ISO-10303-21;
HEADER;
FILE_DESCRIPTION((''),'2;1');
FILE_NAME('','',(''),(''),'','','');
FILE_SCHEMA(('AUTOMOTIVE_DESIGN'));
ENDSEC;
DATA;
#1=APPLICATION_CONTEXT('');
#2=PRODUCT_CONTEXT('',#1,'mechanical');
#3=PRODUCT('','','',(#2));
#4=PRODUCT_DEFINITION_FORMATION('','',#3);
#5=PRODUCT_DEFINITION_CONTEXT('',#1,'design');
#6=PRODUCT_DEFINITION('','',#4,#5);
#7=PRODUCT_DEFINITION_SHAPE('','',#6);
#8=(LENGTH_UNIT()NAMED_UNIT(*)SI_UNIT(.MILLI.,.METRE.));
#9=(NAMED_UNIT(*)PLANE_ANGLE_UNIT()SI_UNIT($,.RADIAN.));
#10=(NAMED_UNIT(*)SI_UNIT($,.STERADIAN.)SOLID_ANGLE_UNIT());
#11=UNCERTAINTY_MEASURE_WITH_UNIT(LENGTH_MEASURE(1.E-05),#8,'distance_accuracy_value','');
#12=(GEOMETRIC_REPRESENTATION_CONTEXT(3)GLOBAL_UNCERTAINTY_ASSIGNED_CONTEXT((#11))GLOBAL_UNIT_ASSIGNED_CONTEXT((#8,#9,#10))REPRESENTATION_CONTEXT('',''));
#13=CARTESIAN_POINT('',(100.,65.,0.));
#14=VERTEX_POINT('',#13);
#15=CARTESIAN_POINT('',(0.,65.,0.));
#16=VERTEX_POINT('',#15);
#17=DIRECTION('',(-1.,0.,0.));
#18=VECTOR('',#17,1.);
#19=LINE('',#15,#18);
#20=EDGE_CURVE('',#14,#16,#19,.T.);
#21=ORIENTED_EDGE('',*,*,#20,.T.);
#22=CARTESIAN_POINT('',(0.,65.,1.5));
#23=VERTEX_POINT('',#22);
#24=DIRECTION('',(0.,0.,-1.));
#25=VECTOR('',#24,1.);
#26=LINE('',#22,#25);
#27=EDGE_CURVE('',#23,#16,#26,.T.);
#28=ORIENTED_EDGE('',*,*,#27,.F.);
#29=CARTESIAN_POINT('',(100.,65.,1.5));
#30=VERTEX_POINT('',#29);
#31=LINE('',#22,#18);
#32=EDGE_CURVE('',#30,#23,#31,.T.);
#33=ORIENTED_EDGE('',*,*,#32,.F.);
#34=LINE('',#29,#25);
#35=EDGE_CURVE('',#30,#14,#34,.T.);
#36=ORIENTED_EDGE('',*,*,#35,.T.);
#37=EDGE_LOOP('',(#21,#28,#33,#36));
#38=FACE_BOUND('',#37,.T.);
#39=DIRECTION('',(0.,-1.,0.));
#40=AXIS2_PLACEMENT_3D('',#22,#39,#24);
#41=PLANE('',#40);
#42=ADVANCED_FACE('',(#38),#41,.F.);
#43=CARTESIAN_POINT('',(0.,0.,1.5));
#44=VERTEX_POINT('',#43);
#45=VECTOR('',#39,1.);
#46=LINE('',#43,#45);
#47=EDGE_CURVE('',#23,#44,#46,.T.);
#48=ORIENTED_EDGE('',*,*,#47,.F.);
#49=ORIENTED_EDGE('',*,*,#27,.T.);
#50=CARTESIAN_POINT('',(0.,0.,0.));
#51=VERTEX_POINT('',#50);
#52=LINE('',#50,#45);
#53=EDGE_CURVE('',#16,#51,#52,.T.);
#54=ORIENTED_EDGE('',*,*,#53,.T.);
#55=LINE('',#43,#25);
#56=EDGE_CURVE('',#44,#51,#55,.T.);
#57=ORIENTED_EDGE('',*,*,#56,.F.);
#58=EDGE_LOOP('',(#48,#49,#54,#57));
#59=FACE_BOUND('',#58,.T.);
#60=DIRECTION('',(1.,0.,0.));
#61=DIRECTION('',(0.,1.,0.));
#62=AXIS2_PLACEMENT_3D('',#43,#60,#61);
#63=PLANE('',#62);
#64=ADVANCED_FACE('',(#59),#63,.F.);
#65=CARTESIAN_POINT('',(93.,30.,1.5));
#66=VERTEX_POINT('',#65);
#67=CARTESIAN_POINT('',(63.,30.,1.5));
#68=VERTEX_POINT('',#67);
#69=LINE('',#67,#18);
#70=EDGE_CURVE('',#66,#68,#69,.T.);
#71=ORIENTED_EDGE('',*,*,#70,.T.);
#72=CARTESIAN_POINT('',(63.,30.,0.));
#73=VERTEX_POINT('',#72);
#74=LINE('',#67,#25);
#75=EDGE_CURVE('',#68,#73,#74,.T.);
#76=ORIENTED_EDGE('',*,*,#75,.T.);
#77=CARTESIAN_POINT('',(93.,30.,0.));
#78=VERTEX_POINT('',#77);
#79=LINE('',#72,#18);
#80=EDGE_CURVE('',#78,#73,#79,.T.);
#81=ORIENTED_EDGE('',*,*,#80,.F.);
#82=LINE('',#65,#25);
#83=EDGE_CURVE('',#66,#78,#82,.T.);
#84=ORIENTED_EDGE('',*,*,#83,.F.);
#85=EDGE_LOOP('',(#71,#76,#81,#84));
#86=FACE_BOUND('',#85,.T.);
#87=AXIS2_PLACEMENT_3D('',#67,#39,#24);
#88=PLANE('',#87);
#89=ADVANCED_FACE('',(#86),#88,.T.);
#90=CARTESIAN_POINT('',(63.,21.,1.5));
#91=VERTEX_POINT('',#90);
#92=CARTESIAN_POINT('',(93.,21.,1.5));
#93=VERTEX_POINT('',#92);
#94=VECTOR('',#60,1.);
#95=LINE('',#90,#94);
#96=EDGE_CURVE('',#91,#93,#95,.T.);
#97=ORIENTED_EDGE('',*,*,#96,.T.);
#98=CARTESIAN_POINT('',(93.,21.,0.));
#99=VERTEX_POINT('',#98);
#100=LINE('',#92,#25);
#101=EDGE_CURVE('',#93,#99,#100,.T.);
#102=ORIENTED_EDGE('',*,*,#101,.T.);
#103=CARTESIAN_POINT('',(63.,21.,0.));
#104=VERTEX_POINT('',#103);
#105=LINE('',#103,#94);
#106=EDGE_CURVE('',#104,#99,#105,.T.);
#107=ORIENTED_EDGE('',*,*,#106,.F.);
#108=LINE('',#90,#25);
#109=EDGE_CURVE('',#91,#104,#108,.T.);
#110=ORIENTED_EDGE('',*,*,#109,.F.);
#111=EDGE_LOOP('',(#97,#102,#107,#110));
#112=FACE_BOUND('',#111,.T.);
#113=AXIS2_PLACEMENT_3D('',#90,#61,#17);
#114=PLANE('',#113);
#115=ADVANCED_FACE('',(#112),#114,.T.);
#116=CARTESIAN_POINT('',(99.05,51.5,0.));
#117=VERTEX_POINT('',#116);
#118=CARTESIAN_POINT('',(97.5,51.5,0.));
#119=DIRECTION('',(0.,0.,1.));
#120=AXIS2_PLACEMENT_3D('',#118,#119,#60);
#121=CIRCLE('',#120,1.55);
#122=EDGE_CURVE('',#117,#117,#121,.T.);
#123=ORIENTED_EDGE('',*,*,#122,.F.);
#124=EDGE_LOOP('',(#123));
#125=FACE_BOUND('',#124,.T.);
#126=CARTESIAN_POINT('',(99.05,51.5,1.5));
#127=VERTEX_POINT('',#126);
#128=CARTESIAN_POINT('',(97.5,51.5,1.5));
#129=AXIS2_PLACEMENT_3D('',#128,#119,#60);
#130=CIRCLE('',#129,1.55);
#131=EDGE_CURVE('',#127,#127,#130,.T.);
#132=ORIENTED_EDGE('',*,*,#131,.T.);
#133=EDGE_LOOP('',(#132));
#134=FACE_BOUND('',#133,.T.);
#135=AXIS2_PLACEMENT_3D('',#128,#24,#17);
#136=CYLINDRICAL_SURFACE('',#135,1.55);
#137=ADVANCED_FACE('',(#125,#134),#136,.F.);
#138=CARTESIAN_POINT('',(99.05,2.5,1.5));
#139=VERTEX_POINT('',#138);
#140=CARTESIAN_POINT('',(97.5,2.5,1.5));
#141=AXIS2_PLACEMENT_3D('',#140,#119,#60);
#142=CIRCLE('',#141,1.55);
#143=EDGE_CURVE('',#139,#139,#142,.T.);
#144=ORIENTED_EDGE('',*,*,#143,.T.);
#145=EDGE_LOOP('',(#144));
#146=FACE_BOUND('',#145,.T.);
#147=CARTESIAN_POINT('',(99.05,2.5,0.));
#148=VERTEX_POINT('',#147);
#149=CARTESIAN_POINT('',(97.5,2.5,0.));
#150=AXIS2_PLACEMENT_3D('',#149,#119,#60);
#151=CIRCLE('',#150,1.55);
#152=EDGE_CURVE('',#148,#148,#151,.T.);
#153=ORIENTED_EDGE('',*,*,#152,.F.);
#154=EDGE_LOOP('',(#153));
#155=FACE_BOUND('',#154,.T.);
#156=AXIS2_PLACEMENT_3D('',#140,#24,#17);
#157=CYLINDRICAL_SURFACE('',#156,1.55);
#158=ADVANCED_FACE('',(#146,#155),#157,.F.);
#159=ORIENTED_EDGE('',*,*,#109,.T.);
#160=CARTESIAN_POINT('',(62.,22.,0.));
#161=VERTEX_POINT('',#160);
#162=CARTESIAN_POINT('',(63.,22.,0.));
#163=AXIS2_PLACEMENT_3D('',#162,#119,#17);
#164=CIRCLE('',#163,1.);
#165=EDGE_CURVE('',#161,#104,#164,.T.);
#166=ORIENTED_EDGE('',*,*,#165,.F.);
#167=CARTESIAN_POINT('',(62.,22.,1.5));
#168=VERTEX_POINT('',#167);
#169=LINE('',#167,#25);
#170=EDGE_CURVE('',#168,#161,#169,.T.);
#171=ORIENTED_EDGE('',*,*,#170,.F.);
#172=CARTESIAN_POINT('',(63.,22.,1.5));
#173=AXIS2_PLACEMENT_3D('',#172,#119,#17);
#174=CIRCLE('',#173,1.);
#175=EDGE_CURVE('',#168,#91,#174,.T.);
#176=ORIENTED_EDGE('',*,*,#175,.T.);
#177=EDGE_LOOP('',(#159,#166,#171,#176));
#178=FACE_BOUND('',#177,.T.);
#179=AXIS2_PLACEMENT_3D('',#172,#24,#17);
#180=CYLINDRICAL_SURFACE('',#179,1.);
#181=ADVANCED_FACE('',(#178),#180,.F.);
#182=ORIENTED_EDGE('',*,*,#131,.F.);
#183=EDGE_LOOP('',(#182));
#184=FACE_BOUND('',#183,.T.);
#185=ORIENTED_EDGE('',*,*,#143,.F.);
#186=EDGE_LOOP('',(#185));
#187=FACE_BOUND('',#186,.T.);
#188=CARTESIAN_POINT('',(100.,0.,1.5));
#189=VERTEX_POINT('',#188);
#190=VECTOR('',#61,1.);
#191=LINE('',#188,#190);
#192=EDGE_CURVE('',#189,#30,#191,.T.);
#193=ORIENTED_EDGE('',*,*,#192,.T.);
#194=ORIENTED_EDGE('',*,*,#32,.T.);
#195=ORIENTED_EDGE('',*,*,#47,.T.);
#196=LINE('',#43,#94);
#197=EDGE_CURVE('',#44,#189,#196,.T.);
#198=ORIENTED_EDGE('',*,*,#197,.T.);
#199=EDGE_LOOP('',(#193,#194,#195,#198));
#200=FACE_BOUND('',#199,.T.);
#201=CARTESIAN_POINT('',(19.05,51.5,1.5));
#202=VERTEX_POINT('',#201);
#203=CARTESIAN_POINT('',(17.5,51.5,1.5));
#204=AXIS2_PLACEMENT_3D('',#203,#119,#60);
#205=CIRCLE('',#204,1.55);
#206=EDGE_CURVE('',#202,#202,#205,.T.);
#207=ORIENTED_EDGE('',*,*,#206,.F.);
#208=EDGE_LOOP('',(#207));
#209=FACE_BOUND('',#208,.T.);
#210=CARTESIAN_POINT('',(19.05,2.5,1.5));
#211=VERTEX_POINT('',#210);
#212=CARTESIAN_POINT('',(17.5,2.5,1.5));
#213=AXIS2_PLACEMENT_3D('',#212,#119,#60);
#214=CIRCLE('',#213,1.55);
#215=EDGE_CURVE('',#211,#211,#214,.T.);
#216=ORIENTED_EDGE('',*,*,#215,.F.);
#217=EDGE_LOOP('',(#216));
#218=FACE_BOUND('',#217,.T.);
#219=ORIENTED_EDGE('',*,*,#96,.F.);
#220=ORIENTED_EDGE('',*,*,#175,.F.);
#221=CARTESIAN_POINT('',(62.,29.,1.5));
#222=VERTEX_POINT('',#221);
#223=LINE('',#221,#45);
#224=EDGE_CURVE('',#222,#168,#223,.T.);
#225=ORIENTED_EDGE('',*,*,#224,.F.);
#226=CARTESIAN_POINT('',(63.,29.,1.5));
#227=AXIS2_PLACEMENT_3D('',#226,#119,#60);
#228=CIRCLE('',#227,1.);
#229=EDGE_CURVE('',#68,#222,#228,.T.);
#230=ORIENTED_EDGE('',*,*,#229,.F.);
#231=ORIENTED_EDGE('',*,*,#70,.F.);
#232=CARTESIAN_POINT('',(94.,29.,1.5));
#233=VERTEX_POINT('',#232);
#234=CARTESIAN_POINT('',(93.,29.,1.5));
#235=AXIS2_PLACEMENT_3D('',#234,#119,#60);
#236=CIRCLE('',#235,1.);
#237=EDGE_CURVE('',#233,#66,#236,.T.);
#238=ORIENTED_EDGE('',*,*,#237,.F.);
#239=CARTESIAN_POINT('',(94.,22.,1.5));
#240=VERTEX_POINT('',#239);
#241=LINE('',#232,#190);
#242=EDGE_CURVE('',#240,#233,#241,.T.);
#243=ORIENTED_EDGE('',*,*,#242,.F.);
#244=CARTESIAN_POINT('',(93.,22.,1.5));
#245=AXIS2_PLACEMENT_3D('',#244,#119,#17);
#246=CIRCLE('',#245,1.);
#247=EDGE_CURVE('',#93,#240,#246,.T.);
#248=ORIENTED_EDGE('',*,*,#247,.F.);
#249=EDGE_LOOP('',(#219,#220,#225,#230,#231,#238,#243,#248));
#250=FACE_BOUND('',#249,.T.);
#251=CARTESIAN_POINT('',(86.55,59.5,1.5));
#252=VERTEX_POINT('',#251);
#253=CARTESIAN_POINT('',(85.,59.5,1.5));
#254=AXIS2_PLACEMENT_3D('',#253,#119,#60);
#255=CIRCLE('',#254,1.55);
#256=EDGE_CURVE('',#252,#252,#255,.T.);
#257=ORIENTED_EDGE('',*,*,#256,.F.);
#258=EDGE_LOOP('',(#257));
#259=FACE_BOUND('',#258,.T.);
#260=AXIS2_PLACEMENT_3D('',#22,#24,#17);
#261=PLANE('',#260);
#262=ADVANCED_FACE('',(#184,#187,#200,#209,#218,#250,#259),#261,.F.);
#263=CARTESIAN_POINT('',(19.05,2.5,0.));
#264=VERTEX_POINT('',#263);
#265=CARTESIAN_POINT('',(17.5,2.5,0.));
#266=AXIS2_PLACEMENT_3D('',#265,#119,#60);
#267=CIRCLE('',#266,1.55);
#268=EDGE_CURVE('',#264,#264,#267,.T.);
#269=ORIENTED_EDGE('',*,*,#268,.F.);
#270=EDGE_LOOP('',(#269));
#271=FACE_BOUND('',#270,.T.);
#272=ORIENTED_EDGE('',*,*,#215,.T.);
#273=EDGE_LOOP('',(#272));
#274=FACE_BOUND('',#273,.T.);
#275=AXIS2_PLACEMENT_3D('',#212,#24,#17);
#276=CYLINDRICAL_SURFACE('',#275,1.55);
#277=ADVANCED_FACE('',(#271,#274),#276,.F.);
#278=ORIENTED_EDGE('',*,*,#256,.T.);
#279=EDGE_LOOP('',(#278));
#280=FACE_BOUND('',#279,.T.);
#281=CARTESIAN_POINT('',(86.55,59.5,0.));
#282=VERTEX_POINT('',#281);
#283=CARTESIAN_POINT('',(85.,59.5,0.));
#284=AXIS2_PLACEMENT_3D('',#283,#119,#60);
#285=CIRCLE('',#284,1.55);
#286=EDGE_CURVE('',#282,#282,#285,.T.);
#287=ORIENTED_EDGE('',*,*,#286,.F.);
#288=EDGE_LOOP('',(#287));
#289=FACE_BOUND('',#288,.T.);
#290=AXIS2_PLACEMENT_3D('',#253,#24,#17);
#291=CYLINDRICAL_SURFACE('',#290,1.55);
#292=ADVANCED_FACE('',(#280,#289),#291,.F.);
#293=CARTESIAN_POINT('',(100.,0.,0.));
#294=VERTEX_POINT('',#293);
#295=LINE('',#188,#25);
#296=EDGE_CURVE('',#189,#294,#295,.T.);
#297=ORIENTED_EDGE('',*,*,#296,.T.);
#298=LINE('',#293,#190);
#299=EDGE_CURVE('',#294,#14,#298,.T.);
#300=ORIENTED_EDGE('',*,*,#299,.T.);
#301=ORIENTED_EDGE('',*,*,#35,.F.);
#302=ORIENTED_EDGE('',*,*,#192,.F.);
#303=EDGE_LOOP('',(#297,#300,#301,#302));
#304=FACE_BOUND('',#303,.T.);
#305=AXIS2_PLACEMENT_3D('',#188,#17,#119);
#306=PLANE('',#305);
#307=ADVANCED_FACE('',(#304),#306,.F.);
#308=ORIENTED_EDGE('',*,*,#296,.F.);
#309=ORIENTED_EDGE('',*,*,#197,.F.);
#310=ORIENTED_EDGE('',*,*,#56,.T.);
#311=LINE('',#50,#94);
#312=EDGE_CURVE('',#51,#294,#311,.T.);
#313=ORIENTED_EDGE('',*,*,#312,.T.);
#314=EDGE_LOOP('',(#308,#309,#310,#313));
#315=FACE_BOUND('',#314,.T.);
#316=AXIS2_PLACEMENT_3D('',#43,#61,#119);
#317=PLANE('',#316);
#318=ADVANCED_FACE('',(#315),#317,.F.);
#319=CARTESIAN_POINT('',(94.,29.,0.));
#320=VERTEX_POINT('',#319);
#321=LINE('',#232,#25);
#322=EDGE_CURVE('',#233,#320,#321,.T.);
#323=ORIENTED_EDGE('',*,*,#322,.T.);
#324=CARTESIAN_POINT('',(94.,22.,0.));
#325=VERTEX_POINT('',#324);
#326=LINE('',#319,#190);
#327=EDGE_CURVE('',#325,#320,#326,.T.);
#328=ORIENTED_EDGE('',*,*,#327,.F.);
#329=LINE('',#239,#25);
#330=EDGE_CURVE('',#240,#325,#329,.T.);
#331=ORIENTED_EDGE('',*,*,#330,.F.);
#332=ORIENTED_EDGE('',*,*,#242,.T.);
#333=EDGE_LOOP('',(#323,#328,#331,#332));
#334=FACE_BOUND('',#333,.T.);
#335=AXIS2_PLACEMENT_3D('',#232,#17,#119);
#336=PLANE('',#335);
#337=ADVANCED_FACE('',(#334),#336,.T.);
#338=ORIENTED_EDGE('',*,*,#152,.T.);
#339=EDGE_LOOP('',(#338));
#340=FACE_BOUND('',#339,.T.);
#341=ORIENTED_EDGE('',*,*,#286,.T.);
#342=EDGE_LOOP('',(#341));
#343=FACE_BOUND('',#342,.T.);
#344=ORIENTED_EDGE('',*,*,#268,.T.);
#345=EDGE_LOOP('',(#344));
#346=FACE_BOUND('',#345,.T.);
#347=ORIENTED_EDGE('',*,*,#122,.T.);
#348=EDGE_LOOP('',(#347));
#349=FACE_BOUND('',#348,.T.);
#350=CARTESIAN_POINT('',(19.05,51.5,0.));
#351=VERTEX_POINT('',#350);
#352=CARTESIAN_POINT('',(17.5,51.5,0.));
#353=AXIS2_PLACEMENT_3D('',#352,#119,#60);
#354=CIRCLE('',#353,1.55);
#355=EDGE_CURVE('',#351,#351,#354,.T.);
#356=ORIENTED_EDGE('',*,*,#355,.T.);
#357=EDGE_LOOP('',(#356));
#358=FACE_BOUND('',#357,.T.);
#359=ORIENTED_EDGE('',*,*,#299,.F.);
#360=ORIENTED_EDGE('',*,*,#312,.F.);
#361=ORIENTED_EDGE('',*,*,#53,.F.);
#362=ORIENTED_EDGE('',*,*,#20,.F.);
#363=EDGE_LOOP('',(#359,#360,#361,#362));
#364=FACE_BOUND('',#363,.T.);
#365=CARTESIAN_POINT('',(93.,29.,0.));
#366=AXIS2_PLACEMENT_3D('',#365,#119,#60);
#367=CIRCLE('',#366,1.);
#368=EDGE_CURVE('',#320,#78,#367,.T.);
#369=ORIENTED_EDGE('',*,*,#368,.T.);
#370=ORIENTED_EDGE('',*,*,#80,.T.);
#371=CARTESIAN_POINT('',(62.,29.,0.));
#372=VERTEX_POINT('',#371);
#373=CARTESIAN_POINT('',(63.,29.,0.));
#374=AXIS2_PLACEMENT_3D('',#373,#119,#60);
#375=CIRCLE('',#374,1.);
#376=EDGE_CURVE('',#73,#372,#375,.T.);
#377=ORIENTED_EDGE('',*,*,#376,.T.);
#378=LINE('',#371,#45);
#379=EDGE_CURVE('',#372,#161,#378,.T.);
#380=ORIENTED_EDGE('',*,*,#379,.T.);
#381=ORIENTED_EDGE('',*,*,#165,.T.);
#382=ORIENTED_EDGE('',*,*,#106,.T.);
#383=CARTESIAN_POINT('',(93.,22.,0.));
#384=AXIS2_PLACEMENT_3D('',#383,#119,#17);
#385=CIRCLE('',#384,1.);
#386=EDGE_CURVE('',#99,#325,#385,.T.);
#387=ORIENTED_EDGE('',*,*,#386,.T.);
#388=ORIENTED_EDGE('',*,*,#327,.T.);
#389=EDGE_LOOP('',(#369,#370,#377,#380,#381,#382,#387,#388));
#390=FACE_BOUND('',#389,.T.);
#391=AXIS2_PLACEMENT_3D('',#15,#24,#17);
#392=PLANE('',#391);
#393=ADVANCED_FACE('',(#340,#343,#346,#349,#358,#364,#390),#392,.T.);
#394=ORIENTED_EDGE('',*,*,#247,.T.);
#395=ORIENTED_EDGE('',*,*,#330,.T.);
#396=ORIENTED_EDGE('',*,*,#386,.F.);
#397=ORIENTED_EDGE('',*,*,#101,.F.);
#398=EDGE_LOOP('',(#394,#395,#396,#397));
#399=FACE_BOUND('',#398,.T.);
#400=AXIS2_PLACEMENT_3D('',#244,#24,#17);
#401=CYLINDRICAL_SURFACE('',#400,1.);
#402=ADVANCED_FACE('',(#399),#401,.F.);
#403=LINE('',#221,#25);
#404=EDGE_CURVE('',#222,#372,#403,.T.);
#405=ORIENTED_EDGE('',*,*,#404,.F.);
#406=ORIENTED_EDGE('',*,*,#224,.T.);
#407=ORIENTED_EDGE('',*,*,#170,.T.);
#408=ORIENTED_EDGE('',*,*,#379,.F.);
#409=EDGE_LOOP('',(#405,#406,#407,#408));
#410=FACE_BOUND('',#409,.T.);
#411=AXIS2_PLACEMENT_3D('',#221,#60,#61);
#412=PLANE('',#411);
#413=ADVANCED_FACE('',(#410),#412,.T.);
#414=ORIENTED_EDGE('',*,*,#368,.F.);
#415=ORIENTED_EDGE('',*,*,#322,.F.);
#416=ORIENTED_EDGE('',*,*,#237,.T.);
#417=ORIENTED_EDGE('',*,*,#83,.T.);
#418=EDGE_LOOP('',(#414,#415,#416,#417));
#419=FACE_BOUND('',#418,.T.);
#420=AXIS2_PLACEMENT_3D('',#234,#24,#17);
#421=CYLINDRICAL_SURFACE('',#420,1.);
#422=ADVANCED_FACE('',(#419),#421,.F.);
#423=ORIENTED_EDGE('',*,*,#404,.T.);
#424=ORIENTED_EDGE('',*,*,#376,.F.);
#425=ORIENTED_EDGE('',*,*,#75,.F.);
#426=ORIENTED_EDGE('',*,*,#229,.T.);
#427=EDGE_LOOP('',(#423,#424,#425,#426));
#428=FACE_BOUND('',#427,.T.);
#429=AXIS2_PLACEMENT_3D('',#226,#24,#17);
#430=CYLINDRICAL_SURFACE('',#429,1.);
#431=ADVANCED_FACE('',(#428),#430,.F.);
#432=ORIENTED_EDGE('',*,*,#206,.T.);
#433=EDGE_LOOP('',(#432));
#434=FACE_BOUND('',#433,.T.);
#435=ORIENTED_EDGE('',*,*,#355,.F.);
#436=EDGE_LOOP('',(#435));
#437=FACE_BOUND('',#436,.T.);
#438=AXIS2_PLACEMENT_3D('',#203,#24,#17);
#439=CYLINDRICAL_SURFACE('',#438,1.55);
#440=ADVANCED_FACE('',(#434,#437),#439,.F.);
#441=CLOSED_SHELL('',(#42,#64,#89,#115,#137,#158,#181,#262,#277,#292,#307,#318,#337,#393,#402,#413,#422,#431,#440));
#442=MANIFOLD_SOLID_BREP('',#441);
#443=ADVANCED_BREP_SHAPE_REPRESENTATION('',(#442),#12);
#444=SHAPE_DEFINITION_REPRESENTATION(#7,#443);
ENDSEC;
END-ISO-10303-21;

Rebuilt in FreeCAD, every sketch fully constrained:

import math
import FreeCAD as App
import Part
import Sketcher
Q = App.Units.Quantity


def add_polygon(sketch, points):
    """Adds a closed chain of lines whose ends are joined by coincident constraints."""
    first, n = sketch.GeometryCount, len(points)
    for a, b in zip(points, points[1:] + points[:1]):
        sketch.addGeometry(Part.LineSegment(App.Vector(*a, 0), App.Vector(*b, 0)), False)
    for i in range(n):
        sketch.addConstraint(Sketcher.Constraint("Coincident", first + i, 2, first + (i + 1) % n, 1))

doc = App.newDocument("Part")
body = doc.addObject("PartDesign::Body", "Body")

sketch1 = body.newObject("Sketcher::SketchObject", "Sketch")
sketch1.AttachmentSupport = (doc.getObject("XY_Plane"), [""])
sketch1.MapMode = "FlatFace"
add_polygon(sketch1, [(0, 65), (0, 0), (100, 0), (100, 65)])
sketch1.addGeometry(Part.Circle(App.Vector(17.5, 2.5, 0), App.Vector(0, 0, 1), 1.6), False)
sketch1.addGeometry(Part.Circle(App.Vector(97.5, 2.5, 0), App.Vector(0, 0, 1), 1.6), False)
sketch1.addGeometry(Part.ArcOfCircle(Part.Circle(App.Vector(63, 29, 0), App.Vector(0, 0, 1), 1), math.radians(90), math.radians(180)), False)
sketch1.addGeometry(Part.LineSegment(App.Vector(63, 30, 0), App.Vector(93, 30, 0)), False)
sketch1.addGeometry(Part.ArcOfCircle(Part.Circle(App.Vector(93, 29, 0), App.Vector(0, 0, 1), 1), math.radians(0), math.radians(90)), False)
sketch1.addGeometry(Part.LineSegment(App.Vector(94, 29, 0), App.Vector(94, 22, 0)), False)
sketch1.addGeometry(Part.ArcOfCircle(Part.Circle(App.Vector(93, 22, 0), App.Vector(0, 0, 1), 1), math.radians(-90), math.radians(0)), False)
sketch1.addGeometry(Part.LineSegment(App.Vector(93, 21, 0), App.Vector(63, 21, 0)), False)
sketch1.addGeometry(Part.ArcOfCircle(Part.Circle(App.Vector(63, 22, 0), App.Vector(0, 0, 1), 1), math.radians(-180), math.radians(-90)), False)
sketch1.addGeometry(Part.LineSegment(App.Vector(62, 22, 0), App.Vector(62, 29, 0)), False)
sketch1.addGeometry(Part.Circle(App.Vector(17.5, 51.5, 0), App.Vector(0, 0, 1), 1.6), False)
sketch1.addGeometry(Part.Circle(App.Vector(97.5, 51.5, 0), App.Vector(0, 0, 1), 1.6), False)
sketch1.addGeometry(Part.Circle(App.Vector(85, 59.5, 0), App.Vector(0, 0, 1), 1.6), False)
sketch1.addConstraint(Sketcher.Constraint("Tangent", 6, 1, 7, 1))
sketch1.addConstraint(Sketcher.Constraint("Tangent", 7, 2, 8, 2))
sketch1.addConstraint(Sketcher.Constraint("Tangent", 8, 1, 9, 1))
sketch1.addConstraint(Sketcher.Constraint("Tangent", 9, 2, 10, 2))
sketch1.addConstraint(Sketcher.Constraint("Tangent", 10, 1, 11, 1))
sketch1.addConstraint(Sketcher.Constraint("Tangent", 11, 2, 12, 2))
sketch1.addConstraint(Sketcher.Constraint("Tangent", 12, 1, 13, 1))
sketch1.addConstraint(Sketcher.Constraint("Tangent", 13, 2, 6, 2))
sketch1.addConstraint(Sketcher.Constraint("Vertical", 0))
sketch1.addConstraint(Sketcher.Constraint("Horizontal", 1))
sketch1.addConstraint(Sketcher.Constraint("Vertical", 2))
sketch1.addConstraint(Sketcher.Constraint("Horizontal", 3))
sketch1.addConstraint(Sketcher.Constraint("Horizontal", 7))
sketch1.addConstraint(Sketcher.Constraint("Vertical", 9))
sketch1.addConstraint(Sketcher.Constraint("Horizontal", 11))
sketch1.addConstraint(Sketcher.Constraint("Vertical", 13))
sketch1.addConstraint(Sketcher.Constraint("Coincident", 0, 2, -1, 1))
sketch1.addConstraint(Sketcher.Constraint("Equal", 4, 5))
sketch1.addConstraint(Sketcher.Constraint("Equal", 6, 8))
sketch1.addConstraint(Sketcher.Constraint("Equal", 8, 10))
sketch1.addConstraint(Sketcher.Constraint("Equal", 10, 12))
sketch1.addConstraint(Sketcher.Constraint("Equal", 5, 14))
sketch1.addConstraint(Sketcher.Constraint("Equal", 14, 15))
sketch1.addConstraint(Sketcher.Constraint("Equal", 15, 16))
sketch1.addConstraint(Sketcher.Constraint("Horizontal", 4, 3, 5, 3))
sketch1.addConstraint(Sketcher.Constraint("Horizontal", 14, 3, 15, 3))
sketch1.addConstraint(Sketcher.Constraint("Vertical", 4, 3, 14, 3))
sketch1.addConstraint(Sketcher.Constraint("Vertical", 5, 3, 15, 3))
sketch1.addConstraint(Sketcher.Constraint("Radius", 6, Q("1 mm")))
sketch1.addConstraint(Sketcher.Constraint("Diameter", 4, Q("3.1 mm")))
sketch1.addConstraint(Sketcher.Constraint("DistanceX", 1, 1, 1, 2, Q("100 mm")))
sketch1.addConstraint(Sketcher.Constraint("DistanceX", 7, 1, 7, 2, Q("30 mm")))
sketch1.addConstraint(Sketcher.Constraint("DistanceY", 0, 2, 0, 1, Q("65 mm")))
sketch1.addConstraint(Sketcher.Constraint("DistanceY", 9, 2, 9, 1, Q("7 mm")))
sketch1.addConstraint(Sketcher.Constraint("DistanceX", -1, 1, 6, 3, Q("63 mm")))
sketch1.addConstraint(Sketcher.Constraint("DistanceY", -1, 1, 6, 3, Q("29 mm")))
sketch1.addConstraint(Sketcher.Constraint("DistanceX", -1, 1, 16, 3, Q("85 mm")))
sketch1.addConstraint(Sketcher.Constraint("DistanceX", 4, 3, 5, 3, Q("80 mm")))
sketch1.addConstraint(Sketcher.Constraint("DistanceY", 4, 3, 14, 3, Q("49 mm")))
sketch1.addConstraint(Sketcher.Constraint("DistanceY", 15, 3, 16, 3, Q("8 mm")))
sketch1.addConstraint(Sketcher.Constraint("DistanceX", -1, 1, 4, 3, Q("17.5 mm")))
sketch1.addConstraint(Sketcher.Constraint("DistanceY", -1, 1, 4, 3, Q("2.5 mm")))
pad1 = body.newObject("PartDesign::Pad", "Pad")
pad1.Profile = sketch1
pad1.Length = 1.5

doc.recompute()
